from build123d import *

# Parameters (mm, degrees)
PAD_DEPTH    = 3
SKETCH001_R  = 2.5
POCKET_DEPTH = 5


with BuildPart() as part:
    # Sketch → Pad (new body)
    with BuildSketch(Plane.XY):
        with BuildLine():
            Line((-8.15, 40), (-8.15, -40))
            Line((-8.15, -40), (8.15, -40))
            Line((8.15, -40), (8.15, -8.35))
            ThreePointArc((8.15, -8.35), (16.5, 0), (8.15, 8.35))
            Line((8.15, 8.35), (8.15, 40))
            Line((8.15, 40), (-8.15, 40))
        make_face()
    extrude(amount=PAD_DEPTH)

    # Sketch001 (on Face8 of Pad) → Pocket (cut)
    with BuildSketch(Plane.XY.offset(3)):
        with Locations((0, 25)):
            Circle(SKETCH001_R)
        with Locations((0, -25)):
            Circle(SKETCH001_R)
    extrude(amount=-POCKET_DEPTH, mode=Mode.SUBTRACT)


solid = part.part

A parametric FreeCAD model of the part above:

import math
import FreeCAD as App
import Part
import Sketcher
from FreeCAD import Vector

doc = App.newDocument("Part")
body = doc.addObject("PartDesign::Body", "Body")

sketch1 = doc.addObject("Sketcher::SketchObject", "Sketch")
body.addObject(sketch1)
sketch1.AttachmentSupport = (doc.XY_Plane, [""])
sketch1.MapMode = "FlatFace"
sketch1.addGeometry(Part.LineSegment(Vector(-8.15, 40, 0), Vector(-8.15, -40, 0)), False)
sketch1.addGeometry(Part.LineSegment(Vector(-8.15, -40, 0), Vector(8.15, -40, 0)), False)
sketch1.addGeometry(Part.LineSegment(Vector(8.15, -40, 0), Vector(8.15, -8.35, 0)), False)
sketch1.addGeometry(Part.ArcOfCircle(Part.Circle(Vector(8.15, 0, 0), Vector(0, 0, 1), 8.35), math.radians(-90), math.radians(90)), False)
sketch1.addGeometry(Part.LineSegment(Vector(8.15, 8.35, 0), Vector(8.15, 40, 0)), False)
sketch1.addGeometry(Part.LineSegment(Vector(8.15, 40, 0), Vector(-8.15, 40, 0)), False)
sketch1.addConstraint(Sketcher.Constraint("Coincident", 0, 2, 1, 1))
sketch1.addConstraint(Sketcher.Constraint("Coincident", 1, 2, 2, 1))
sketch1.addConstraint(Sketcher.Constraint("Coincident", 2, 2, 3, 1))
sketch1.addConstraint(Sketcher.Constraint("Coincident", 3, 2, 4, 1))
sketch1.addConstraint(Sketcher.Constraint("Coincident", 4, 2, 5, 1))
sketch1.addConstraint(Sketcher.Constraint("Coincident", 5, 2, 0, 1))
sketch1.addConstraint(Sketcher.Constraint("Vertical", 0))
sketch1.addConstraint(Sketcher.Constraint("Horizontal", 1))
sketch1.addConstraint(Sketcher.Constraint("Vertical", 2))
sketch1.addConstraint(Sketcher.Constraint("Vertical", 4))
sketch1.addConstraint(Sketcher.Constraint("Horizontal", 5))
sketch1.addConstraint(Sketcher.Constraint("Symmetric", 0, 2, 4, 2, -1, 1))
sketch1.addConstraint(Sketcher.Constraint("Symmetric", 2, 2, 3, 2, -1))
sketch1.addConstraint(Sketcher.Constraint("Vertical", 3, 3, 1, 2))
sketch1.addConstraint(Sketcher.Constraint("DistanceY", 0, 2, 0, 1, 80.0))
sketch1.addConstraint(Sketcher.Constraint("Radius", 3, 8.35))
sketch1.addConstraint(Sketcher.Constraint("DistanceX", 1, 1, 1, 2, 16.3))
pad1 = doc.addObject("PartDesign::Pad", "Pad")
body.addObject(pad1)
pad1.Profile = sketch1
pad1.Length = 3

sketch2 = doc.addObject("Sketcher::SketchObject", "Sketch001")
body.addObject(sketch2)
sketch2.AttachmentSupport = (doc.XY_Plane, [""])
sketch2.MapMode = "FlatFace"
sketch2.AttachmentOffset = App.Placement(Vector(0, 0, 3), App.Rotation())
sketch2.addGeometry(Part.Circle(Vector(0, 25, 0), Vector(0, 0, 1), 2.5), False)
sketch2.addGeometry(Part.Circle(Vector(0, -25, 0), Vector(0, 0, 1), 2.5), False)
sketch2.addConstraint(Sketcher.Constraint("Equal", 0, 1))
sketch2.addConstraint(Sketcher.Constraint("Symmetric", 0, 3, 1, 3, -1, 1))
sketch2.addConstraint(Sketcher.Constraint("PointOnObject", 0, 3, -2))
sketch2.addConstraint(Sketcher.Constraint("Diameter", 0, 5.0))
sketch2.addConstraint(Sketcher.Constraint("DistanceY", -1, 1, 0, 3, 25.0))
pocket1 = doc.addObject("PartDesign::Pocket", "Pocket")
body.addObject(pocket1)
pocket1.Profile = sketch2
pocket1.Length = 5

doc.recompute()
